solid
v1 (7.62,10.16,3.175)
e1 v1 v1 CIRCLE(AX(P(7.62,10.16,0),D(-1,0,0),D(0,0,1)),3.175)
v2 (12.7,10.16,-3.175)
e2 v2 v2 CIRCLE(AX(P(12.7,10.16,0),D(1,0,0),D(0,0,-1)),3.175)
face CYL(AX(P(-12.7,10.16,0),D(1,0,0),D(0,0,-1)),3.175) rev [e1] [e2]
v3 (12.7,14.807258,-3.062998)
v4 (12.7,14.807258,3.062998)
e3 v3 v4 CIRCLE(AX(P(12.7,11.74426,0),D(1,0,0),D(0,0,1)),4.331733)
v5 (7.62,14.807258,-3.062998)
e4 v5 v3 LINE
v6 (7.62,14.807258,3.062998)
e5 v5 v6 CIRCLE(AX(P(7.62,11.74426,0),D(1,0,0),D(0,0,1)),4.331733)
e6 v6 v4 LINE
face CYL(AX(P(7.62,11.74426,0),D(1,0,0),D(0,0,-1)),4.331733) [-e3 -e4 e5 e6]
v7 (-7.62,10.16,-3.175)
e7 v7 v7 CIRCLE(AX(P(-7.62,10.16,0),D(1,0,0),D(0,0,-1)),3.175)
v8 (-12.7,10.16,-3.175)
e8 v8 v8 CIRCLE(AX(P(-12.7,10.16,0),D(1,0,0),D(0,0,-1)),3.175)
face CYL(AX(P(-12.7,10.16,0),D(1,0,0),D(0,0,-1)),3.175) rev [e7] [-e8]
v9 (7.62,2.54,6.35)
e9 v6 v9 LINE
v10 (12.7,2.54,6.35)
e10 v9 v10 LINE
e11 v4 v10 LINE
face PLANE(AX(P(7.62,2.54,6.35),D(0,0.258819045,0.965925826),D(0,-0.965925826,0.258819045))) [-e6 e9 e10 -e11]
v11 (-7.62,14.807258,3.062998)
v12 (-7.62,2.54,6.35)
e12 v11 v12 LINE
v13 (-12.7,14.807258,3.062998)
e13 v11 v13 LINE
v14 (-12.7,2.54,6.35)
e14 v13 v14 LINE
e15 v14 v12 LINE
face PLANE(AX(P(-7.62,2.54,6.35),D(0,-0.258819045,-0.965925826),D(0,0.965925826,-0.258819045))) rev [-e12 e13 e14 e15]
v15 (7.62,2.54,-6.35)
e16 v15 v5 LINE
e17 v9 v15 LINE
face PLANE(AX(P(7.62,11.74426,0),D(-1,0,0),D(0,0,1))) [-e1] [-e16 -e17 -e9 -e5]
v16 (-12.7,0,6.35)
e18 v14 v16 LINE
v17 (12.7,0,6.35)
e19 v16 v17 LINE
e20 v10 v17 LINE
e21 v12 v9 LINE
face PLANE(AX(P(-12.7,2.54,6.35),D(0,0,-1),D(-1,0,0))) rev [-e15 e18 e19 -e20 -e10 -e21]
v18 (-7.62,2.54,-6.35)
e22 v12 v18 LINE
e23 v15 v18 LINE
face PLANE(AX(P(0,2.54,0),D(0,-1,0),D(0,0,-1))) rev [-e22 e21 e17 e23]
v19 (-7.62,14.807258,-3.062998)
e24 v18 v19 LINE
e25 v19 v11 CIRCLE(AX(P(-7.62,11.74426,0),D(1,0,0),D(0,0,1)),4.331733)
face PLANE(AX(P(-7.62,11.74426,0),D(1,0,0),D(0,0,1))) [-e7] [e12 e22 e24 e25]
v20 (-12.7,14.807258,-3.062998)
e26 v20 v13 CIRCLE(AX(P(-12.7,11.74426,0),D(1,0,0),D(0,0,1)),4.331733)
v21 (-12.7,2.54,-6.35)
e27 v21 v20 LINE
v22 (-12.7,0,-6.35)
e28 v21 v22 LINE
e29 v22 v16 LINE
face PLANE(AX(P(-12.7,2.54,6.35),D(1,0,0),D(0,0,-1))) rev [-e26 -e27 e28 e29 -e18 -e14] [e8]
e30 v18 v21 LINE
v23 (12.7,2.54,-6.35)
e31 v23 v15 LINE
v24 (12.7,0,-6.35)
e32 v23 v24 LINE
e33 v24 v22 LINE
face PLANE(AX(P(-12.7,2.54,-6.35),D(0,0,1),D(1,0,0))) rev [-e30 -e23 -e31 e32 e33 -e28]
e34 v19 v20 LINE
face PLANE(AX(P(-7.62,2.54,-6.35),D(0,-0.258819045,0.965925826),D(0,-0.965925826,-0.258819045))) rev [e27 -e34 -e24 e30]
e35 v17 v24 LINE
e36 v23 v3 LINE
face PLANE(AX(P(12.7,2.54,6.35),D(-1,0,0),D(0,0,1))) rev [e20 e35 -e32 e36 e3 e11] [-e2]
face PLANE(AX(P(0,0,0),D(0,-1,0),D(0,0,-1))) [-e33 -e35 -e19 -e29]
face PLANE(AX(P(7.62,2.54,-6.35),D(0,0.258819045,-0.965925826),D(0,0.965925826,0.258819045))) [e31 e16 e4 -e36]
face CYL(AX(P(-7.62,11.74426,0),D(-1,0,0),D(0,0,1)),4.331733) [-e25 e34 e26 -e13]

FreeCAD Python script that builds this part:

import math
import FreeCAD as App
import Part
import Sketcher
Q = App.Units.Quantity

doc = App.newDocument("Part")
body = doc.addObject("PartDesign::Body", "Body")

sketch1 = body.newObject("Sketcher::SketchObject", "Sketch")
sketch1.AttachmentSupport = (doc.getObject("XZ_Plane"), [""])
sketch1.MapMode = "FlatFace"
sketch1.addGeometry([
    Part.LineSegment(App.Vector(-12.7, -6.35, 0), App.Vector(-12.7, 6.35, 0)),
    Part.LineSegment(App.Vector(-12.7, 6.35, 0), App.Vector(12.7, 6.35, 0)),
    Part.LineSegment(App.Vector(12.7, 6.35, 0), App.Vector(12.7, -6.35, 0)),
    Part.LineSegment(App.Vector(12.7, -6.35, 0), App.Vector(-12.7, -6.35, 0)),
], False)
sketch1.addConstraint([
    Sketcher.Constraint("Coincident", 0, 2, 1, 1),
    Sketcher.Constraint("Coincident", 1, 2, 2, 1),
    Sketcher.Constraint("Coincident", 2, 2, 3, 1),
    Sketcher.Constraint("Coincident", 3, 2, 0, 1),
    Sketcher.Constraint("Vertical", 0),
    Sketcher.Constraint("Horizontal", 1),
    Sketcher.Constraint("Vertical", 2),
    Sketcher.Constraint("Horizontal", 3),
    Sketcher.Constraint("Symmetric", 0, 2, 2, 2, -1, 1),
    Sketcher.Constraint("DistanceX", 1, 1, 1, 2, Q("1 in")),
    Sketcher.Constraint("DistanceY", 0, 1, 0, 2, Q("0.5 in")),
])
pad1 = body.newObject("PartDesign::Pad", "Pad")
pad1.Profile = sketch1
pad1.Length = Q("0.1 in")
pad1.Reversed = True

sketch2 = body.newObject("Sketcher::SketchObject", "Sketch001")
sketch2.AttachmentSupport = (doc.getObject("YZ_Plane"), [""])
sketch2.MapMode = "FlatFace"
sketch2.AttachmentOffset = App.Placement(App.Vector(0, 0, 0.5 * 25.4), App.Rotation())
sketch2.addGeometry([
    Part.LineSegment(App.Vector(14.807258, 3.062998, 0), App.Vector(2.54, 6.35, 0)),
    Part.LineSegment(App.Vector(2.54, 6.35, 0), App.Vector(2.54, -6.35, 0)),
    Part.LineSegment(App.Vector(2.54, -6.35, 0), App.Vector(14.807258, -3.062998, 0)),
    Part.ArcOfCircle(Part.Circle(App.Vector(11.74426, 0, 0), App.Vector(0, 0, 1), 4.331733), math.radians(-45), math.radians(45)),
], False)
sketch2.addConstraint([
    Sketcher.Constraint("Coincident", 0, 2, 1, 1),
    Sketcher.Constraint("Coincident", 1, 2, 2, 1),
    Sketcher.Constraint("Coincident", 2, 2, 3, 1),
    Sketcher.Constraint("Coincident", 3, 2, 0, 1),
    Sketcher.Constraint("Vertical", 1),
    Sketcher.Constraint("Symmetric", 2, 2, 3, 2, -1),
    Sketcher.Constraint("Equal", 0, 2),
    Sketcher.Constraint("DistanceY", 1, 2, 1, 1, Q("0.5 in")),
    Sketcher.Constraint("Angle", 0, Q("165 deg")),
    Sketcher.Constraint("Distance", 0, Q("0.5 in")),
    Sketcher.Constraint("DistanceX", -1, 1, 0, 2, Q("0.1 in")),
    Sketcher.Constraint("Radius", 3, Q("4.331733 mm")),
])
pad2 = body.newObject("PartDesign::Pad", "Pad001")
pad2.Profile = sketch2
pad2.Length = Q("0.2 in")
pad2.Reversed = True
doc.recompute()

mirrored = body.newObject("PartDesign::Mirrored", "Mirrored")
mirrored.Originals = [pad2]
mirrored.MirrorPlane = (doc.getObject("YZ_Plane"), [""])
body.Tip = mirrored

sketch3 = body.newObject("Sketcher::SketchObject", "Sketch002")
sketch3.AttachmentSupport = (doc.getObject("YZ_Plane"), [""])
sketch3.MapMode = "FlatFace"
sketch3.AttachmentOffset = App.Placement(App.Vector(0, 0, 0.5 * 25.4), App.Rotation())
sketch3.addGeometry(Part.Circle(App.Vector(10.16, 0, 0), App.Vector(0, 0, 1), 3.175), False)
sketch3.addConstraint([
    Sketcher.Constraint("PointOnObject", 0, 3, -1),
    Sketcher.Constraint("Diameter", 0, Q("0.25 in")),
    Sketcher.Constraint("DistanceX", -1, 1, 0, 3, Q("0.4 in")),
])
pocket1 = body.newObject("PartDesign::Pocket", "Pocket")
pocket1.Profile = sketch3
pocket1.Type = "ThroughAll"

doc.recompute()
